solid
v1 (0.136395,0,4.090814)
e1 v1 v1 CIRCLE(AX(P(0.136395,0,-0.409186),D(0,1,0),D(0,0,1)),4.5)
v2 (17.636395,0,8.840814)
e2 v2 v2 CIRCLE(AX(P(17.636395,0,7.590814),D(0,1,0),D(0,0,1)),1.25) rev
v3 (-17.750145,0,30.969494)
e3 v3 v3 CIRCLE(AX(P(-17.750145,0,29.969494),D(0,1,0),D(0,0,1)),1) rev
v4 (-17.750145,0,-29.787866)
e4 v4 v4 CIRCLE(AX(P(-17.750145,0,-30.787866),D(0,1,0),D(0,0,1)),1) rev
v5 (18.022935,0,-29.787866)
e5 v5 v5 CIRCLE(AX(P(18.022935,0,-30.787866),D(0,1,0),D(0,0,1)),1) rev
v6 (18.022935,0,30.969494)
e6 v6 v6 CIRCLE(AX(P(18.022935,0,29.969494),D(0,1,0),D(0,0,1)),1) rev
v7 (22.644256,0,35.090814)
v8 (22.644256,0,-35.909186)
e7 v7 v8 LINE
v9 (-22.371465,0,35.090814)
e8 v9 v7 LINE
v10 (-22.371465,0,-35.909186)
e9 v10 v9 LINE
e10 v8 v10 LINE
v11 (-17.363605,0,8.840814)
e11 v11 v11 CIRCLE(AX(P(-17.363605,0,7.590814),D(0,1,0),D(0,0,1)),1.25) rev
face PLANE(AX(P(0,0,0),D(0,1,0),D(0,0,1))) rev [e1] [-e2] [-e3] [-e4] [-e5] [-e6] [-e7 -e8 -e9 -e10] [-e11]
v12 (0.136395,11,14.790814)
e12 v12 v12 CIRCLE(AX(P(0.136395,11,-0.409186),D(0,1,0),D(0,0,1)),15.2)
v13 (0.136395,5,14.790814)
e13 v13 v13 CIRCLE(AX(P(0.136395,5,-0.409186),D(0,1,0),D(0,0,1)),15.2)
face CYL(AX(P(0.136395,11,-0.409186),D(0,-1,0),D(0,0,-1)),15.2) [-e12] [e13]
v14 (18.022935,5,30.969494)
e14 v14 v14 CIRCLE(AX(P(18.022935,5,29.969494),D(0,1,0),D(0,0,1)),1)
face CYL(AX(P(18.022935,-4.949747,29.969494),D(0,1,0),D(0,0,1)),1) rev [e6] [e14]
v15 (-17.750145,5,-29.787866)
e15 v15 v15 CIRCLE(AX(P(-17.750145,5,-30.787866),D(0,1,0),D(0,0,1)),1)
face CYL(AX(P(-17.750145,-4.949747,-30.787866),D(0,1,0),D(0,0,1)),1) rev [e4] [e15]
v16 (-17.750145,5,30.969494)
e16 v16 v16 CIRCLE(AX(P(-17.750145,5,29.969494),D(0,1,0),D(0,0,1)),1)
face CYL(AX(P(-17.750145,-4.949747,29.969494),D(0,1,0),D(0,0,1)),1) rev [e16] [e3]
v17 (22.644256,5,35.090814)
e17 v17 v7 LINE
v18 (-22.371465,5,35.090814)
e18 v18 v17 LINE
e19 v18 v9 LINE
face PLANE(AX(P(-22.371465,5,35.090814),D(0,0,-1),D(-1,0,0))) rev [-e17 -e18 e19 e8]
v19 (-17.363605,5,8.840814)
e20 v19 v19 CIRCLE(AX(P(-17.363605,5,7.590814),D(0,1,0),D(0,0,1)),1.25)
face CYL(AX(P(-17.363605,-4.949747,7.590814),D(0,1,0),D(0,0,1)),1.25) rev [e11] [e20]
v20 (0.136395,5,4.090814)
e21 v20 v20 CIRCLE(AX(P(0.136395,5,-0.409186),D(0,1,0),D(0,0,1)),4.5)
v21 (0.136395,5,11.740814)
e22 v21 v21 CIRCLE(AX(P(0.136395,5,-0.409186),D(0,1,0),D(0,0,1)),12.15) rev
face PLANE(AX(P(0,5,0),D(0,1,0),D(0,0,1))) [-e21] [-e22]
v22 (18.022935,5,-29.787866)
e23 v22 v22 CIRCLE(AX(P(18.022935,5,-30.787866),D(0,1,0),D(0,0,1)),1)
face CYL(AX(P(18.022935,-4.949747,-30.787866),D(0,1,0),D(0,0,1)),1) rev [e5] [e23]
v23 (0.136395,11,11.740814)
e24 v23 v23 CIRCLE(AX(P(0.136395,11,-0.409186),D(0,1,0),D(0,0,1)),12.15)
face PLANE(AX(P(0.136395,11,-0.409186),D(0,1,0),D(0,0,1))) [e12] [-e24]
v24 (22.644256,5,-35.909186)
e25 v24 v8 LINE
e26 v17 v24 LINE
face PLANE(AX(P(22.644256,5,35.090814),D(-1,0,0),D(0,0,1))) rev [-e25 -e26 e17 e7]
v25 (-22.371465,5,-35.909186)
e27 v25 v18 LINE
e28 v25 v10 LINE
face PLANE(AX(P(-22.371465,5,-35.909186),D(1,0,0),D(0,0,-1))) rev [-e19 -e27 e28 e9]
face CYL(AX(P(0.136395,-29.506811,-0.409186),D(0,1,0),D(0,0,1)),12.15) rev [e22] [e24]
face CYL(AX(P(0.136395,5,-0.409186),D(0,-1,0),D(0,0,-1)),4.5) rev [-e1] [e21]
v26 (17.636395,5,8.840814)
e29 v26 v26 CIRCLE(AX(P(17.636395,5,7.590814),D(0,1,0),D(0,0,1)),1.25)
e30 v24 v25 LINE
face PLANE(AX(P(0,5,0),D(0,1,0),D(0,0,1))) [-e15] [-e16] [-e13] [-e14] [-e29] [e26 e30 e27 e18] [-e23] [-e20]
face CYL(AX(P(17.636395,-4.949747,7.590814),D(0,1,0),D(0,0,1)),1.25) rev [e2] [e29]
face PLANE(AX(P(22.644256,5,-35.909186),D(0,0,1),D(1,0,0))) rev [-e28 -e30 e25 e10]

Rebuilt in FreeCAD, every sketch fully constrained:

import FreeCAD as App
import Part
import Sketcher

V = App.Vector

doc = App.newDocument("Part")
params = doc.addObject("Spreadsheet::Sheet", "Params")
for row, (alias, value) in enumerate([
    ("sketch1_diameter", "9 mm"),
    ("sketch1_diameter2", "3.5 mm"),
    ("sketch1_height", "71 mm"),
    ("pad1_length", "5 mm"),
    ("sketch2_diameter", "30.4 mm"),
    ("sketch2_diameter2", "24.4 mm"),
    ("pad2_length", "6 mm"),
    ("sketch3_diameter", "3 mm"),
    ("pocket1_length", "60 mm"),
    ("sketch4_diameter", "24.4 mm"),
    ("sketch4_diameter2", "24.3 mm"),
    ("pad3_length", "6 mm"),
    ("sketch5_diameter", "3 mm"),
    ("sketch5_diameter2", "2 mm"),
    ("sketch5_diameter3", "3.5 mm"),
    ("sketch5_diameter4", "2.5 mm"),
    ("pad4_length", "5 mm"),
], start=1):
    params.set(f"A{row}", alias)
    params.set(f"B{row}", "=" + value)
    params.setAlias(f"B{row}", alias)

body = doc.addObject("PartDesign::Body", "Body")

# Sketch on XZ plane
sketch1 = body.newObject("Sketcher::SketchObject", "Sketch")
sketch1.AttachmentSupport = (doc.getObject("XZ_Plane"), [""])
sketch1.MapMode = "FlatFace"
sketch1.addGeometry([
    Part.LineSegment(V(-22.371465, -35.909186, 0), V(-22.371465, 35.090814, 0)),  # 0
    Part.LineSegment(V(-22.371465, 35.090814, 0), V(22.644256, 35.090814, 0)),  # 1
    Part.LineSegment(V(22.644256, 35.090814, 0), V(22.644256, -35.909186, 0)),  # 2
    Part.LineSegment(V(22.644256, -35.909186, 0), V(-22.371465, -35.909186, 0)),  # 3
    Part.Circle(V(-17.363605, 7.590814, 0), V(0, 0, 1), 1.75),  # 4
    Part.Circle(V(17.636395, 7.590814, 0), V(0, 0, 1), 1.75),  # 5
    Part.Circle(V(0.136395, -0.409186, 0), V(0, 0, 1), 4.5),  # 6
], False)
sketch1.addConstraint([
    Sketcher.Constraint("Coincident", 0, 2, 1, 1),
    Sketcher.Constraint("Coincident", 1, 2, 2, 1),
    Sketcher.Constraint("Coincident", 2, 2, 3, 1),
    Sketcher.Constraint("Coincident", 3, 2, 0, 1),
    Sketcher.Constraint("Vertical", 0),
    Sketcher.Constraint("Horizontal", 1),
    Sketcher.Constraint("Vertical", 2),
    Sketcher.Constraint("Horizontal", 3),
    Sketcher.Constraint("Equal", 4, 5),
    Sketcher.Constraint("Horizontal", 4, 3, 5, 3),
    Sketcher.Constraint("Diameter", 6, 9.0),
    Sketcher.Constraint("Diameter", 4, 3.5),
    Sketcher.Constraint("DistanceY", 0, 1, 0, 2, 71.0),
    Sketcher.Constraint("DistanceX", 4, 3, 5, 3, 35.0),
    Sketcher.Constraint("DistanceY", 6, 3, 4, 3, 8.0),
    Sketcher.Constraint("DistanceX", 4, 3, 6, 3, 17.5),
    Sketcher.Constraint("DistanceY", 4, 3, 0, 2, 27.5),
    Sketcher.Constraint("DistanceX", 1, 1, 1, 2, 45.015721),
    Sketcher.Constraint("DistanceX", 0, 2, 4, 3, 5.00786),
    Sketcher.Constraint("DistanceX", 4, 3, -1, 1, 17.363605),
    Sketcher.Constraint("DistanceY", -1, 1, 4, 3, 7.590814),
])
sketch1.setExpression("Constraints[10]", "Params.sketch1_diameter")
sketch1.setExpression("Constraints[11]", "Params.sketch1_diameter2")
sketch1.setExpression("Constraints[12]", "Params.sketch1_height")
pad1 = body.newObject("PartDesign::Pad", "Pad")
pad1.Profile = sketch1
pad1.setExpression("Length", "Params.pad1_length")
pad1.Reversed = True

# Sketch on XZ plane
sketch2 = body.newObject("Sketcher::SketchObject", "Sketch001")
sketch2.AttachmentSupport = (doc.getObject("XZ_Plane"), [""])
sketch2.MapMode = "FlatFace"
sketch2.AttachmentOffset = App.Placement(V(0, 0, -5), App.Rotation())
sketch2.addGeometry([
    Part.Circle(V(0.136395, -0.409186, 0), V(0, 0, 1), 15.2),
    Part.Circle(V(0.136395, -0.409186, 0), V(0, 0, 1), 12.2),
], False)
sketch2.addConstraint([
    Sketcher.Constraint("Coincident", 1, 3, 0, 3),
    Sketcher.Constraint("Diameter", 0, 30.4),
    Sketcher.Constraint("Diameter", 1, 24.4),
    Sketcher.Constraint("DistanceX", -1, 1, 0, 3, 0.136395),
    Sketcher.Constraint("DistanceY", 0, 3, -1, 1, 0.409186),
])
sketch2.setExpression("Constraints[1]", "Params.sketch2_diameter")
sketch2.setExpression("Constraints[2]", "Params.sketch2_diameter2")
pad2 = body.newObject("PartDesign::Pad", "Pad001")
pad2.Profile = sketch2
pad2.setExpression("Length", "Params.pad2_length")
pad2.Reversed = True

# Sketch on XZ plane
sketch3 = body.newObject("Sketcher::SketchObject", "Sketch002")
sketch3.AttachmentSupport = (doc.getObject("XZ_Plane"), [""])
sketch3.MapMode = "FlatFace"
sketch3.addGeometry([
    Part.Circle(V(18.022935, 29.969494, 0), V(0, 0, 1), 1.5),
    Part.Circle(V(-17.750145, 29.969494, 0), V(0, 0, 1), 1.5),
    Part.Circle(V(-17.750145, -30.787866, 0), V(0, 0, 1), 1.5),
    Part.Circle(V(18.022935, -30.787866, 0), V(0, 0, 1), 1.5),
], False)
sketch3.addConstraint([
    Sketcher.Constraint("Equal", 0, 1),
    Sketcher.Constraint("Equal", 1, 2),
    Sketcher.Constraint("Equal", 2, 3),
    Sketcher.Constraint("Horizontal", 0, 3, 1, 3),
    Sketcher.Constraint("Horizontal", 2, 3, 3, 3),
    Sketcher.Constraint("Vertical", 1, 3, 2, 3),
    Sketcher.Constraint("Vertical", 0, 3, 3, 3),
    Sketcher.Constraint("Diameter", 0, 3.0),
    Sketcher.Constraint("DistanceX", 1, 3, 0, 3, 35.77308),
    Sketcher.Constraint("DistanceY", 2, 3, 1, 3, 60.757359),
    Sketcher.Constraint("DistanceX", -1, 1, 0, 3, 18.022935),
    Sketcher.Constraint("DistanceY", -1, 1, 0, 3, 29.969494),
])
sketch3.setExpression("Constraints[7]", "Params.sketch3_diameter")
pocket1 = body.newObject("PartDesign::Pocket", "Pocket")
pocket1.Profile = sketch3
pocket1.setExpression("Length", "Params.pocket1_length")

# Sketch on XZ plane
sketch4 = body.newObject("Sketcher::SketchObject", "Sketch003")
sketch4.AttachmentSupport = (doc.getObject("XZ_Plane"), [""])
sketch4.MapMode = "FlatFace"
sketch4.AttachmentOffset = App.Placement(V(0, 0, -11), App.Rotation())
sketch4.addGeometry([
    Part.Circle(V(0.136395, -0.409186, 0), V(0, 0, 1), 12.2),
    Part.Circle(V(0.136395, -0.409186, 0), V(0, 0, 1), 12.15),
], False)
sketch4.addConstraint([
    Sketcher.Constraint("Coincident", 1, 3, 0, 3),
    Sketcher.Constraint("Diameter", 0, 24.4),
    Sketcher.Constraint("Diameter", 1, 24.3),
    Sketcher.Constraint("DistanceX", -1, 1, 0, 3, 0.136395),
    Sketcher.Constraint("DistanceY", 0, 3, -1, 1, 0.409186),
])
sketch4.setExpression("Constraints[1]", "Params.sketch4_diameter")
sketch4.setExpression("Constraints[2]", "Params.sketch4_diameter2")
pad3 = body.newObject("PartDesign::Pad", "Pad002")
pad3.Profile = sketch4
pad3.setExpression("Length", "Params.pad3_length")

# Sketch on XZ plane
sketch5 = body.newObject("Sketcher::SketchObject", "Sketch004")
sketch5.AttachmentSupport = (doc.getObject("XZ_Plane"), [""])
sketch5.MapMode = "FlatFace"
sketch5.AttachmentOffset = App.Placement(V(0, 0, -5), App.Rotation())
sketch5.addGeometry([
    Part.Circle(V(-17.750145, 29.969494, 0), V(0, 0, 1), 1.5),  # 0
    Part.Circle(V(-17.750145, 29.969494, 0), V(0, 0, 1), 1),  # 1
    Part.Circle(V(18.022935, 29.969494, 0), V(0, 0, 1), 1.5),  # 2
    Part.Circle(V(18.022935, 29.969494, 0), V(0, 0, 1), 1),  # 3
    Part.Circle(V(17.636395, 7.590814, 0), V(0, 0, 1), 1.75),  # 4
    Part.Circle(V(17.636395, 7.590814, 0), V(0, 0, 1), 1.25),  # 5
    Part.Circle(V(-17.363605, 7.590814, 0), V(0, 0, 1), 1.75),  # 6
    Part.Circle(V(-17.363605, 7.590814, 0), V(0, 0, 1), 1.25),  # 7
    Part.Circle(V(-17.750145, -30.787866, 0), V(0, 0, 1), 1.5),  # 8
    Part.Circle(V(-17.750145, -30.787866, 0), V(0, 0, 1), 1),  # 9
    Part.Circle(V(18.022935, -30.787866, 0), V(0, 0, 1), 1.5),  # 10
    Part.Circle(V(18.022935, -30.787866, 0), V(0, 0, 1), 1),  # 11
], False)
sketch5.addConstraint([
    Sketcher.Constraint("Coincident", 1, 3, 0, 3),
    Sketcher.Constraint("Coincident", 3, 3, 2, 3),
    Sketcher.Constraint("Coincident", 5, 3, 4, 3),
    Sketcher.Constraint("Coincident", 7, 3, 6, 3),
    Sketcher.Constraint("Coincident", 9, 3, 8, 3),
    Sketcher.Constraint("Coincident", 11, 3, 10, 3),
    Sketcher.Constraint("Equal", 0, 2),
    Sketcher.Constraint("Equal", 1, 3),
    Sketcher.Constraint("Equal", 4, 6),
    Sketcher.Constraint("Equal", 5, 7),
    Sketcher.Constraint("Equal", 2, 8),
    Sketcher.Constraint("Equal", 3, 9),
    Sketcher.Constraint("Equal", 8, 10),
    Sketcher.Constraint("Equal", 9, 11),
    Sketcher.Constraint("Horizontal", 1, 3, 2, 3),
    Sketcher.Constraint("Horizontal", 5, 3, 6, 3),
    Sketcher.Constraint("Horizontal", 9, 3, 10, 3),
    Sketcher.Constraint("Vertical", 1, 3, 8, 3),
    Sketcher.Constraint("Vertical", 3, 3, 10, 3),
    Sketcher.Constraint("Diameter", 0, 3.0),
    Sketcher.Constraint("Diameter", 1, 2.0),
    Sketcher.Constraint("Diameter", 4, 3.5),
    Sketcher.Constraint("Diameter", 5, 2.5),
    Sketcher.Constraint("DistanceX", 6, 3, 4, 3, 35.0),
    Sketcher.Constraint("DistanceX", 0, 3, 2, 3, 35.77308),
    Sketcher.Constraint("DistanceX", 4, 3, 2, 3, 0.38654),
    Sketcher.Constraint("DistanceY", 4, 3, 2, 3, 22.37868),
    Sketcher.Constraint("DistanceY", 8, 3, 6, 3, 38.37868),
    Sketcher.Constraint("DistanceX", 0, 3, -1, 1, 17.750145),
    Sketcher.Constraint("DistanceY", -1, 1, 0, 3, 29.969494),
])
sketch5.setExpression("Constraints[19]", "Params.sketch5_diameter")
sketch5.setExpression("Constraints[20]", "Params.sketch5_diameter2")
sketch5.setExpression("Constraints[21]", "Params.sketch5_diameter3")
sketch5.setExpression("Constraints[22]", "Params.sketch5_diameter4")
pad4 = body.newObject("PartDesign::Pad", "Pad003")
pad4.Profile = sketch5
pad4.setExpression("Length", "Params.pad4_length")

doc.recompute()
